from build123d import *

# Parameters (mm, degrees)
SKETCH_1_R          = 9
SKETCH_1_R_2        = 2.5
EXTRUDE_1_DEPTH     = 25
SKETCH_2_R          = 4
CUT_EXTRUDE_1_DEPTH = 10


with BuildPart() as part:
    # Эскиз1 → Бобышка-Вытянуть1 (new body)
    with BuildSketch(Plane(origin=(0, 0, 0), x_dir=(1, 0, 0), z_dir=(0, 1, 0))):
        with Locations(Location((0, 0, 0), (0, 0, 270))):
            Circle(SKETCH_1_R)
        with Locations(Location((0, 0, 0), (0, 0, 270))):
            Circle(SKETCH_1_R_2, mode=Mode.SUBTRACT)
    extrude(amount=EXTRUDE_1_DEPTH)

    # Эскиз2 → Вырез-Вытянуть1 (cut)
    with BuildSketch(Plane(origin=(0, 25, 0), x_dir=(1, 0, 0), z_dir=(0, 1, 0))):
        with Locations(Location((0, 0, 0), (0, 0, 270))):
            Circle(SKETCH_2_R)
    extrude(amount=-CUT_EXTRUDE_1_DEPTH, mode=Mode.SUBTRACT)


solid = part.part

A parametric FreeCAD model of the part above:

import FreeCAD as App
import Part
import Sketcher

doc = App.newDocument("Part")
params = doc.addObject("Spreadsheet::Sheet", "Params")
for row, (alias, value) in enumerate([
    ("sketch1_diameter", "18 mm"),
    ("sketch1_diameter2", "5 mm"),
    ("pad1_length", "25 mm"),
    ("sketch2_diameter", "8 mm"),
    ("pocket1_length", "10 mm"),
], start=1):
    params.set(f"A{row}", alias)
    params.set(f"B{row}", "=" + value)
    params.setAlias(f"B{row}", alias)

body = doc.addObject("PartDesign::Body", "Body")

sketch1 = body.newObject("Sketcher::SketchObject", "Sketch")
sketch1.AttachmentSupport = (doc.getObject("XZ_Plane"), [""])
sketch1.MapMode = "FlatFace"
sketch1.addGeometry([
    Part.Circle(App.Vector(0, 0, 0), App.Vector(0, 0, 1), 9),
    Part.Circle(App.Vector(0, 0, 0), App.Vector(0, 0, 1), 2.5),
], False)
sketch1.addConstraint([
    Sketcher.Constraint("Coincident", 0, 3, -1, 1),
    Sketcher.Constraint("Coincident", 1, 3, -1, 1),
    Sketcher.Constraint("Diameter", 0, 18.0),
    Sketcher.Constraint("Diameter", 1, 5.0),
])
sketch1.setExpression("Constraints[2]", "Params.sketch1_diameter")
sketch1.setExpression("Constraints[3]", "Params.sketch1_diameter2")
pad1 = body.newObject("PartDesign::Pad", "Pad")
pad1.Profile = sketch1
pad1.setExpression("Length", "Params.pad1_length")
pad1.Reversed = True

sketch2 = body.newObject("Sketcher::SketchObject", "Sketch001")
sketch2.AttachmentSupport = (doc.getObject("XZ_Plane"), [""])
sketch2.MapMode = "FlatFace"
sketch2.AttachmentOffset = App.Placement(App.Vector(0, 0, -25), App.Rotation())
sketch2.addGeometry(Part.Circle(App.Vector(0, 0, 0), App.Vector(0, 0, 1), 4), False)
sketch2.addConstraint([
    Sketcher.Constraint("Coincident", 0, 3, -1, 1),
    Sketcher.Constraint("Diameter", 0, 8.0),
])
sketch2.setExpression("Constraints[1]", "Params.sketch2_diameter")
pocket1 = body.newObject("PartDesign::Pocket", "Pocket")
pocket1.Profile = sketch2
pocket1.setExpression("Length", "Params.pocket1_length")
pocket1.Reversed = True

doc.recompute()
